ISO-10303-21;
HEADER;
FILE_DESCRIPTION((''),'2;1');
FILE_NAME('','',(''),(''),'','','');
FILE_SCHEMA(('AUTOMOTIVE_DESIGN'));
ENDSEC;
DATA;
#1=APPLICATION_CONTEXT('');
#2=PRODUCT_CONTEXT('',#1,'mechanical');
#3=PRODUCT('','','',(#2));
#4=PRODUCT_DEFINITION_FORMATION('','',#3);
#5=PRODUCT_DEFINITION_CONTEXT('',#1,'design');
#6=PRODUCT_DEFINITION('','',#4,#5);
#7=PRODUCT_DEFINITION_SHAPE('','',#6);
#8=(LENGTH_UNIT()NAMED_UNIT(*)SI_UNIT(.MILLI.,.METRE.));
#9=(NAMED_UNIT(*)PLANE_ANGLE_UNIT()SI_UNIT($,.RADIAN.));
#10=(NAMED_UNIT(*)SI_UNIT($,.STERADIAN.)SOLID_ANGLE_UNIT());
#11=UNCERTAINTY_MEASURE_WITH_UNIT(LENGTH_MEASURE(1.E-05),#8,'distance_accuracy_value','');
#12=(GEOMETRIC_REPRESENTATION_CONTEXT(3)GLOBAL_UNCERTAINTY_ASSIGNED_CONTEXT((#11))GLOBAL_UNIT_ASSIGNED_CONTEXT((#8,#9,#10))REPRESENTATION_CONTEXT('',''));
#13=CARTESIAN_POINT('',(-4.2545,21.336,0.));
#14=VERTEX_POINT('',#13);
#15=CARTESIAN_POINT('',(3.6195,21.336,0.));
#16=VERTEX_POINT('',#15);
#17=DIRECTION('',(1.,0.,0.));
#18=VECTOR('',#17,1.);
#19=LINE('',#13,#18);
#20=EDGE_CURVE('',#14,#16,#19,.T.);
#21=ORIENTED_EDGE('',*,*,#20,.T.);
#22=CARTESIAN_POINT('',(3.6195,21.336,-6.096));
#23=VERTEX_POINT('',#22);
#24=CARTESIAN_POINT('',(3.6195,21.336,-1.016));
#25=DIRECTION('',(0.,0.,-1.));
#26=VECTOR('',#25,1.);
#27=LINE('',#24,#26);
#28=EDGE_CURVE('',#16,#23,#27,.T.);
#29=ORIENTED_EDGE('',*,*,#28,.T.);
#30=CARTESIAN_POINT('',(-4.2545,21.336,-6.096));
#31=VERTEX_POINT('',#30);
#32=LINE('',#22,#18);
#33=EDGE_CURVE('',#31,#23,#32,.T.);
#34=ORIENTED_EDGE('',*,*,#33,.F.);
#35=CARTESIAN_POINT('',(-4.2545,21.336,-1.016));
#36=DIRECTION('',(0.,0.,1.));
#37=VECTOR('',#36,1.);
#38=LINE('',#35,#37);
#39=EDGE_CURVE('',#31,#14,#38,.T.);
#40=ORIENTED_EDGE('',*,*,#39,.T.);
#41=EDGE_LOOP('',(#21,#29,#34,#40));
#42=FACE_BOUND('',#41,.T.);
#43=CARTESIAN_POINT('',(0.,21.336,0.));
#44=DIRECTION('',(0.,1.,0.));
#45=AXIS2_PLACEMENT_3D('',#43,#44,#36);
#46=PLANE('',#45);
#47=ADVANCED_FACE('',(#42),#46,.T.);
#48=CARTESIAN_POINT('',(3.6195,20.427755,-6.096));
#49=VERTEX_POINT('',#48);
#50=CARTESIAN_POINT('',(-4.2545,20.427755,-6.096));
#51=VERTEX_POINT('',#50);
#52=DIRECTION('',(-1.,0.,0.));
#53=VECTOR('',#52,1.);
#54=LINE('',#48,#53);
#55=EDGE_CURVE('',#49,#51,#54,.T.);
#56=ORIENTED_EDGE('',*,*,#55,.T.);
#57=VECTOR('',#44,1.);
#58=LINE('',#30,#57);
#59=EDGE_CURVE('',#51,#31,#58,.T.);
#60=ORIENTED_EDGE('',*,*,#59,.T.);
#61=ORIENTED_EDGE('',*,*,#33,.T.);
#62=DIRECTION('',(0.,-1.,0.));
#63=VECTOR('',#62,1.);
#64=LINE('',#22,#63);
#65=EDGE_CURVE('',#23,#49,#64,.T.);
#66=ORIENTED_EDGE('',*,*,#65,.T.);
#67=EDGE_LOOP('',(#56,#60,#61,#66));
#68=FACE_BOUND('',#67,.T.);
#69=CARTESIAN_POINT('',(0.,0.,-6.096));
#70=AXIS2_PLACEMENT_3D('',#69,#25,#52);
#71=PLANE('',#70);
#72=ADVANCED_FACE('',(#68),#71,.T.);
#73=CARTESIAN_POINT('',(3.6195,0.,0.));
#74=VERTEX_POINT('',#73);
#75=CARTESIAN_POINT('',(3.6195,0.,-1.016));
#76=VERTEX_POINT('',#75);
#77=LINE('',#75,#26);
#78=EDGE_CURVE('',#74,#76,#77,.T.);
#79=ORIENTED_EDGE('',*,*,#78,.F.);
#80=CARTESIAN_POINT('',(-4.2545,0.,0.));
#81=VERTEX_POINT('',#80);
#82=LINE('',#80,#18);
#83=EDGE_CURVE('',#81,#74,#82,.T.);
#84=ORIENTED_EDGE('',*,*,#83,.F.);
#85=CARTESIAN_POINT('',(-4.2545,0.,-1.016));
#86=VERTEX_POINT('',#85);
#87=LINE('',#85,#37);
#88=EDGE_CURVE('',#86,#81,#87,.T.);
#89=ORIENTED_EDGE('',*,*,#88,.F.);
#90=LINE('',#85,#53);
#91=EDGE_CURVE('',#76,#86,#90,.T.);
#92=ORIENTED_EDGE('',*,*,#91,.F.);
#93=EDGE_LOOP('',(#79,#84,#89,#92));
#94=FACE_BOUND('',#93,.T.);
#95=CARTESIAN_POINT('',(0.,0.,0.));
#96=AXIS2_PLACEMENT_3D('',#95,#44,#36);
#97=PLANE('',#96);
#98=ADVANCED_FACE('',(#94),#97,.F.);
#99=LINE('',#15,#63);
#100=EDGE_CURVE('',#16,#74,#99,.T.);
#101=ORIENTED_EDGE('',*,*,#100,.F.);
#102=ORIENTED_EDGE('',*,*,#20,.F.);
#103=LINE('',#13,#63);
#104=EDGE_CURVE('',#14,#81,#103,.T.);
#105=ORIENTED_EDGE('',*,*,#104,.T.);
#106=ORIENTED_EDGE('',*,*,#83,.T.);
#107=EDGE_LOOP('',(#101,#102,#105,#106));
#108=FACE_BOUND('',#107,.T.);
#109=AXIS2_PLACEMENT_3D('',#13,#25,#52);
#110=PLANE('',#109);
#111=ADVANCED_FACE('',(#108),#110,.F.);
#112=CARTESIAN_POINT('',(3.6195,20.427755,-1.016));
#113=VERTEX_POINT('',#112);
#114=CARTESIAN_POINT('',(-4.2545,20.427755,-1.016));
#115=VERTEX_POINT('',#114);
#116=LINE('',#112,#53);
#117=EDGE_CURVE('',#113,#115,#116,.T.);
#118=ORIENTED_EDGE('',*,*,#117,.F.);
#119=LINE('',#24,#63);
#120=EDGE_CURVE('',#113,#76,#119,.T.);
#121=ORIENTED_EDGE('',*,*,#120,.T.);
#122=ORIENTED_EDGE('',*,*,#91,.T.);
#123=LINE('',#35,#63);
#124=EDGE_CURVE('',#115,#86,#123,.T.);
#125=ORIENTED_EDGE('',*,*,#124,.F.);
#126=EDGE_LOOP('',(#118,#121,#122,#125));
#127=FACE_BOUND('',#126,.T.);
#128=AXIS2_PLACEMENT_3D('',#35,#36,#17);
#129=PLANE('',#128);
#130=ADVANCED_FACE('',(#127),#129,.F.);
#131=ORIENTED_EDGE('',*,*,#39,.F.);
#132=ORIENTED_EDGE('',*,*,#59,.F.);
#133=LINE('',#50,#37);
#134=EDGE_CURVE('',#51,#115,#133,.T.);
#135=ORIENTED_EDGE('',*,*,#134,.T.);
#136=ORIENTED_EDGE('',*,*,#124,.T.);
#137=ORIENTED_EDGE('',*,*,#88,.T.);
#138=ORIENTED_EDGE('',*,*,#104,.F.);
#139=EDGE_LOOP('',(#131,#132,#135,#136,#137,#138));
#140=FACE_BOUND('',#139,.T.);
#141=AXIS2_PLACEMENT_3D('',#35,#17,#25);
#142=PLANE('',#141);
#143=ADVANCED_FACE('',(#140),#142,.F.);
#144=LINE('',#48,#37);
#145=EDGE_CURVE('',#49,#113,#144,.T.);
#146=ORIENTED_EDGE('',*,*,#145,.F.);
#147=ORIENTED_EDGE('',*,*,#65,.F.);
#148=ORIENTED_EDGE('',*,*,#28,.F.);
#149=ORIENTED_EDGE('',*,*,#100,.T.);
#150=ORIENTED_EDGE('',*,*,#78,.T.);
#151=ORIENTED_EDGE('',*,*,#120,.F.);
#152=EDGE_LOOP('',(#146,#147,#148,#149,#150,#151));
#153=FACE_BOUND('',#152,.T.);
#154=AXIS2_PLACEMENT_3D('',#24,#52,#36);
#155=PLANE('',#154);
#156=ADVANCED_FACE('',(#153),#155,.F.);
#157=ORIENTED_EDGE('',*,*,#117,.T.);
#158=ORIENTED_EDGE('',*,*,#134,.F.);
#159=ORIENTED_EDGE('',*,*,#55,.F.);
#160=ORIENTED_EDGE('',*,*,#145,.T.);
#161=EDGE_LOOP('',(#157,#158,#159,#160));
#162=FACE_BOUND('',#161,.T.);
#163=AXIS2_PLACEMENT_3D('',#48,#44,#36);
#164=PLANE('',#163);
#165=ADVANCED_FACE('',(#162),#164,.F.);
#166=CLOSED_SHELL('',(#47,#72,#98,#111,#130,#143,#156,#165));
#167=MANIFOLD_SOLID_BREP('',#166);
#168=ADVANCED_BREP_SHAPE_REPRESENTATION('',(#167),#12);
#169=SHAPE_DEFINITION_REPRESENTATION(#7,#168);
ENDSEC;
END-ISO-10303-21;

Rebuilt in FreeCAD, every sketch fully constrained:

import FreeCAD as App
import Part
import Sketcher
Q = App.Units.Quantity


def add_polygon(sketch, points):
    """Adds a closed chain of lines whose ends are joined by coincident constraints."""
    first, n = sketch.GeometryCount, len(points)
    for a, b in zip(points, points[1:] + points[:1]):
        sketch.addGeometry(Part.LineSegment(App.Vector(*a, 0), App.Vector(*b, 0)), False)
    for i in range(n):
        sketch.addConstraint(Sketcher.Constraint("Coincident", first + i, 2, first + (i + 1) % n, 1))

doc = App.newDocument("Part")
body = doc.addObject("PartDesign::Body", "Body")

# Sketch on XZ plane
sketch1 = doc.addObject("Sketcher::SketchObject", "Sketch")
body.addObject(sketch1)
sketch1.AttachmentSupport = (doc.XZ_Plane, [""])
sketch1.MapMode = "FlatFace"
add_polygon(sketch1, [(-4.3, -1), (-4.3, 0), (3.6, 0), (3.6, -1)])  # lines 0-3
sketch1.addConstraint([
    Sketcher.Constraint("Vertical", 0),
    Sketcher.Constraint("Horizontal", 1),
    Sketcher.Constraint("Vertical", 2),
    Sketcher.Constraint("Horizontal", 3),
    Sketcher.Constraint("PointOnObject", 0, 2, -1),
    Sketcher.Constraint("DistanceX", 1, 1, 1, 2, Q("0.31 in")),
    Sketcher.Constraint("DistanceY", 0, 1, 0, 2, Q("0.04 in")),
    Sketcher.Constraint("DistanceX", 0, 2, -1, 1, Q("0.1675 in")),
])
pad1 = doc.addObject("PartDesign::Pad", "Pad")
body.addObject(pad1)
pad1.Profile = sketch1
pad1.Length = Q("0.84 in")
pad1.Reversed = True

# Sketch on XY plane
sketch2 = doc.addObject("Sketcher::SketchObject", "Sketch001")
body.addObject(sketch2)
sketch2.AttachmentSupport = (doc.XY_Plane, [""])
sketch2.MapMode = "FlatFace"
sketch2.AttachmentOffset = App.Placement(App.Vector(0, 0, -0.04 * 25.4), App.Rotation())
add_polygon(sketch2, [(3.6, 21.3), (3.6, 20.4), (-4.3, 20.4), (-4.3, 21.3)])  # lines 0-3
sketch2.addConstraint([
    Sketcher.Constraint("Vertical", 0),
    Sketcher.Constraint("Horizontal", 1),
    Sketcher.Constraint("Vertical", 2),
    Sketcher.Constraint("Horizontal", 3),
    Sketcher.Constraint("DistanceX", 1, 2, 1, 1, Q("0.31 in")),
    Sketcher.Constraint("DistanceY", -1, 1, 2, 2, Q("0.84 in")),
    Sketcher.Constraint("DistanceX", -1, 1, 0, 2, Q("0.1425 in")),
    Sketcher.Constraint("DistanceY", 0, 2, 0, 1, Q("0.908245 mm")),
])
pad2 = doc.addObject("PartDesign::Pad", "Pad001")
body.addObject(pad2)
pad2.Profile = sketch2
pad2.Length = Q("0.2 in")
pad2.Reversed = True

doc.recompute()
